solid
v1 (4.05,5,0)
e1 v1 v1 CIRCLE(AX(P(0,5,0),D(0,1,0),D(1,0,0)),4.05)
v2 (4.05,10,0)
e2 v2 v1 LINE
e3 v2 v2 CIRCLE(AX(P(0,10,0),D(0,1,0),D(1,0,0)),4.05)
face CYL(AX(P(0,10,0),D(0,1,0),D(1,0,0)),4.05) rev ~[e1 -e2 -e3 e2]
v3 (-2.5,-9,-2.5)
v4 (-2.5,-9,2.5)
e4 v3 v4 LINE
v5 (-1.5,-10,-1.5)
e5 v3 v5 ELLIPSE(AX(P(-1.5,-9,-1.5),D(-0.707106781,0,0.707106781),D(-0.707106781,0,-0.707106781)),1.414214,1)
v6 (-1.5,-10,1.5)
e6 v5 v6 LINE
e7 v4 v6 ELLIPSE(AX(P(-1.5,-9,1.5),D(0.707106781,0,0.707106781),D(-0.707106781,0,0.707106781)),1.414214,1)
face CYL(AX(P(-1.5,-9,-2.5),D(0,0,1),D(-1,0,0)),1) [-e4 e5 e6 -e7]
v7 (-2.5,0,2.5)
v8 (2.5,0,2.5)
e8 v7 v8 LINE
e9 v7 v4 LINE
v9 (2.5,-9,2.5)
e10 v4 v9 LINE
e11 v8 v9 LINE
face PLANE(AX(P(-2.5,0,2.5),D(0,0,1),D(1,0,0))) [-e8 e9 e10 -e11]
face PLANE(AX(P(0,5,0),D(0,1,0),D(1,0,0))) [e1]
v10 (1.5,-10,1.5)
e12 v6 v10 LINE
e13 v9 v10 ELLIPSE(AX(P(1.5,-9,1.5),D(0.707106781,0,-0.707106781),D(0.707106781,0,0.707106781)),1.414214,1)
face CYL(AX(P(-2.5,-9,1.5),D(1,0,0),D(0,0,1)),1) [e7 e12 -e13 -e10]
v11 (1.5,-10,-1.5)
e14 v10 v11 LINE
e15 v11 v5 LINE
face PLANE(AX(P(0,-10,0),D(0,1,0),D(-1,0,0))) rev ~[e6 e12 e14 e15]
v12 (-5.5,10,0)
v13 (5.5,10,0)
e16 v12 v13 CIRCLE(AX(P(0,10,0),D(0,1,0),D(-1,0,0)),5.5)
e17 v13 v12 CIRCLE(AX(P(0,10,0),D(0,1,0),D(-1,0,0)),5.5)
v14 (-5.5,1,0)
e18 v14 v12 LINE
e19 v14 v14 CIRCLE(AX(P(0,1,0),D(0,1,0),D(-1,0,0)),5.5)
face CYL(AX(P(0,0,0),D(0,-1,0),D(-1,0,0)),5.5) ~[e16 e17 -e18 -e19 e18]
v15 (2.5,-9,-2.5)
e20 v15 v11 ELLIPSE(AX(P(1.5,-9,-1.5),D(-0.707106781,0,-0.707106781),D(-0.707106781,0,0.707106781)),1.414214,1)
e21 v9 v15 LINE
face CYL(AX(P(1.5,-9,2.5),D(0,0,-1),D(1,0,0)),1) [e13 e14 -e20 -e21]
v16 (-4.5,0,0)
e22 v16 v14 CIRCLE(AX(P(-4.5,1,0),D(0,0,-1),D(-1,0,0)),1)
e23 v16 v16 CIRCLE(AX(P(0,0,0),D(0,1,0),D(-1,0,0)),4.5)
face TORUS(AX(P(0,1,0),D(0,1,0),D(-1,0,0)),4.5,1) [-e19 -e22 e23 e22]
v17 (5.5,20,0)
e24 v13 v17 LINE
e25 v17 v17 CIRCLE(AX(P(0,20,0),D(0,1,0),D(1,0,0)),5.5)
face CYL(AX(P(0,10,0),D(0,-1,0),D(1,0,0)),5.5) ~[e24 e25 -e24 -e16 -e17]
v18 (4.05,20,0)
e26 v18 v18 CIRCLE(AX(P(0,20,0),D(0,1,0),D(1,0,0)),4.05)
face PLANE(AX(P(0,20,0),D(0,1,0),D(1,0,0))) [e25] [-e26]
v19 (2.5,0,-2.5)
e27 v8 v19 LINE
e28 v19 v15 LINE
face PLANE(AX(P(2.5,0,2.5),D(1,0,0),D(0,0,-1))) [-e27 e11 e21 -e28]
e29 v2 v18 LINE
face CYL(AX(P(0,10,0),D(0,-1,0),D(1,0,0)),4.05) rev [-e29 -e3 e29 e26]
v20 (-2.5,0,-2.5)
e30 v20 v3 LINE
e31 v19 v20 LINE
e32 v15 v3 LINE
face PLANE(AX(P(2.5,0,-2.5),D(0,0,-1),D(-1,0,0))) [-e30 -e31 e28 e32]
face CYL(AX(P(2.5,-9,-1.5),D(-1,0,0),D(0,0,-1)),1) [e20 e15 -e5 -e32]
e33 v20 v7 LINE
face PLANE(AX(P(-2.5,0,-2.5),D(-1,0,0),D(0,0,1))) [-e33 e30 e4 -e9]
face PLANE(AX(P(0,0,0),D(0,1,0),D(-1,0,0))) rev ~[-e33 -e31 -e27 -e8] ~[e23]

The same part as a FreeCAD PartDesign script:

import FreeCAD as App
import Part
import Sketcher

V = App.Vector


def edges_at(feature, points):
    """Names of the edges that pass closest to the given points."""
    edges = feature.Shape.Edges
    near = lambda p: min(range(len(edges)), key=lambda i: edges[i].distToShape(Part.Vertex(*p))[0])
    return sorted({f"Edge{near(p) + 1}" for p in points})

doc = App.newDocument("Part")
body = doc.addObject("PartDesign::Body", "Body")

sketch1 = body.newObject("Sketcher::SketchObject", "Sketch")
sketch1.AttachmentSupport = (doc.getObject("XZ_Plane"), [""])
sketch1.MapMode = "FlatFace"
sketch1.addGeometry(Part.Circle(V(0, 0, 0), V(0, 0, 1), 6), False)
sketch1.addConstraint([
    Sketcher.Constraint("Coincident", 0, 3, -1, 1),
    Sketcher.Constraint("Diameter", 0, 11.0),
])
pad1 = body.newObject("PartDesign::Pad", "Pad")
pad1.Profile = sketch1
pad1.Length = 10
pad1.Reversed = True

sketch2 = body.newObject("Sketcher::SketchObject", "Sketch001")
sketch2.AttachmentSupport = (doc.getObject("XZ_Plane"), [""])
sketch2.MapMode = "FlatFace"
sketch2.addGeometry([
    Part.LineSegment(V(-2, -2, 0), V(-2, 2, 0)),
    Part.LineSegment(V(-2, 2, 0), V(2, 2, 0)),
    Part.LineSegment(V(2, 2, 0), V(2, -2, 0)),
    Part.LineSegment(V(2, -2, 0), V(-2, -2, 0)),
], False)
sketch2.addConstraint([
    Sketcher.Constraint("Coincident", 0, 2, 1, 1),
    Sketcher.Constraint("Coincident", 1, 2, 2, 1),
    Sketcher.Constraint("Coincident", 2, 2, 3, 1),
    Sketcher.Constraint("Coincident", 3, 2, 0, 1),
    Sketcher.Constraint("Vertical", 0),
    Sketcher.Constraint("Horizontal", 1),
    Sketcher.Constraint("Vertical", 2),
    Sketcher.Constraint("Horizontal", 3),
    Sketcher.Constraint("Symmetric", 0, 2, 2, 2, -1, 1),
    Sketcher.Constraint("Equal", 3, 0),
    Sketcher.Constraint("DistanceX", 1, 1, 1, 2, 5.0),
])
pad2 = body.newObject("PartDesign::Pad", "Pad001")
pad2.Profile = sketch2
pad2.Length = 10
doc.recompute()

fillet = body.newObject("PartDesign::Fillet", "Fillet")
fillet.Base = (pad2, edges_at(pad2, [
    (0, -10, -2.5),
    (-2.5, -10, 0),
    (0, -10, 2.5),
    (2.5, -10, 0),
]))
fillet.Radius = 1
doc.recompute()

fillet2 = body.newObject("PartDesign::Fillet", "Fillet001")
fillet2.Base = (fillet, edges_at(fillet, [(5.5, 0, 0)]))
fillet2.Radius = 1

sketch3 = body.newObject("Sketcher::SketchObject", "Sketch002")
sketch3.AttachmentSupport = (doc.getObject("XZ_Plane"), [""])
sketch3.MapMode = "FlatFace"
sketch3.AttachmentOffset = App.Placement(V(0, 0, -10), App.Rotation())
sketch3.addGeometry(Part.Circle(V(0, 0, 0), V(0, 0, 1), 4), False)
sketch3.addConstraint([
    Sketcher.Constraint("Coincident", 0, 3, -1, 1),
    Sketcher.Constraint("Diameter", 0, 8.1),
])
pocket1 = body.newObject("PartDesign::Pocket", "Pocket")
pocket1.Profile = sketch3
pocket1.Length = 5
pocket1.Reversed = True

sketch4 = body.newObject("Sketcher::SketchObject", "Sketch003")
sketch4.AttachmentSupport = (doc.getObject("XZ_Plane"), [""])
sketch4.MapMode = "FlatFace"
sketch4.AttachmentOffset = App.Placement(V(0, 0, -10), App.Rotation())
sketch4.addGeometry([
    Part.Circle(V(0, 0, 0), V(0, 0, 1), 5.5),
    Part.Circle(V(0, 0, 0), V(0, 0, 1), 4),
], False)
sketch4.addConstraint([
    Sketcher.Constraint("Coincident", 0, 3, -1, 1),
    Sketcher.Constraint("Coincident", 1, 3, -1, 1),
    Sketcher.Constraint("Diameter", 0, 11.0),
    Sketcher.Constraint("Diameter", 1, 8.1),
])
pad3 = body.newObject("PartDesign::Pad", "Pad002")
pad3.Profile = sketch4
pad3.Length = 10
pad3.Reversed = True

doc.recompute()
